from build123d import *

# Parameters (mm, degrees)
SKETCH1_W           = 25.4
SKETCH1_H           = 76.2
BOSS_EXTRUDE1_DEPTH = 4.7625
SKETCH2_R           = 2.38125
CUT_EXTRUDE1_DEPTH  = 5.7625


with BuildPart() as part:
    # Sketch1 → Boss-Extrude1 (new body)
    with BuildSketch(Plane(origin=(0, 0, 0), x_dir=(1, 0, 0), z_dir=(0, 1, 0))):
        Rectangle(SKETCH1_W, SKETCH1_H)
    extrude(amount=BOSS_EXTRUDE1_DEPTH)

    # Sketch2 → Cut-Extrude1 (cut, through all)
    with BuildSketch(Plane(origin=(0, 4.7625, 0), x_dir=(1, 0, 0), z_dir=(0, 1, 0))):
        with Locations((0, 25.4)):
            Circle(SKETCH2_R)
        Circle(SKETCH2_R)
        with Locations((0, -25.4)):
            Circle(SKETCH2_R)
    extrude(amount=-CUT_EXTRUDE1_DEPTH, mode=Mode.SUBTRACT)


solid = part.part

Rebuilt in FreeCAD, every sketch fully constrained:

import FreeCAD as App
import Part
import Sketcher
Q = App.Units.Quantity


def add_polygon(sketch, points):
    """Adds a closed chain of lines whose ends are joined by coincident constraints."""
    first, n = sketch.GeometryCount, len(points)
    for a, b in zip(points, points[1:] + points[:1]):
        sketch.addGeometry(Part.LineSegment(App.Vector(*a, 0), App.Vector(*b, 0)), False)
    for i in range(n):
        sketch.addConstraint(Sketcher.Constraint("Coincident", first + i, 2, first + (i + 1) % n, 1))

doc = App.newDocument("Part")
body = doc.addObject("PartDesign::Body", "Body")

# Sketch on XZ plane
sketch1 = doc.addObject("Sketcher::SketchObject", "Sketch")
body.addObject(sketch1)
sketch1.AttachmentSupport = (doc.XZ_Plane, [""])
sketch1.MapMode = "FlatFace"
add_polygon(sketch1, [(-12.7, -38.1), (-12.7, 38.1), (12.7, 38.1), (12.7, -38.1)])  # lines 0-3
sketch1.addConstraint(Sketcher.Constraint("Vertical", 0))
sketch1.addConstraint(Sketcher.Constraint("Horizontal", 1))
sketch1.addConstraint(Sketcher.Constraint("Vertical", 2))
sketch1.addConstraint(Sketcher.Constraint("Horizontal", 3))
sketch1.addConstraint(Sketcher.Constraint("Symmetric", 0, 2, 2, 2, -1, 1))
sketch1.addConstraint(Sketcher.Constraint("DistanceX", 1, 1, 1, 2, Q("1 in")))
sketch1.addConstraint(Sketcher.Constraint("DistanceY", 0, 1, 0, 2, Q("3 in")))
pad1 = doc.addObject("PartDesign::Pad", "Pad")
body.addObject(pad1)
pad1.Profile = sketch1
pad1.Length = Q("0.1875 in")
pad1.Reversed = True

# Sketch on XZ plane
sketch2 = doc.addObject("Sketcher::SketchObject", "Sketch001")
body.addObject(sketch2)
sketch2.AttachmentSupport = (doc.XZ_Plane, [""])
sketch2.MapMode = "FlatFace"
sketch2.AttachmentOffset = App.Placement(App.Vector(0, 0, -0.1875 * 25.4), App.Rotation())
sketch2.addGeometry(Part.Circle(App.Vector(0, -25.4, 0), App.Vector(0, 0, 1), 2.38125), False)
sketch2.addGeometry(Part.Circle(App.Vector(0, 0, 0), App.Vector(0, 0, 1), 2.38125), False)
sketch2.addGeometry(Part.Circle(App.Vector(0, 25.4, 0), App.Vector(0, 0, 1), 2.38125), False)
sketch2.addConstraint(Sketcher.Constraint("Coincident", 1, 3, -1, 1))
sketch2.addConstraint(Sketcher.Constraint("Equal", 0, 1))
sketch2.addConstraint(Sketcher.Constraint("Equal", 1, 2))
sketch2.addConstraint(Sketcher.Constraint("Symmetric", 0, 3, 2, 3, -1, 1))
sketch2.addConstraint(Sketcher.Constraint("PointOnObject", 0, 3, -2))
sketch2.addConstraint(Sketcher.Constraint("Diameter", 0, Q("0.1875 in")))
sketch2.addConstraint(Sketcher.Constraint("DistanceY", 0, 3, -1, 1, Q("1 in")))
pocket1 = doc.addObject("PartDesign::Pocket", "Pocket")
body.addObject(pocket1)
pocket1.Profile = sketch2
pocket1.Type = "ThroughAll"
pocket1.Reversed = True

doc.recompute()
